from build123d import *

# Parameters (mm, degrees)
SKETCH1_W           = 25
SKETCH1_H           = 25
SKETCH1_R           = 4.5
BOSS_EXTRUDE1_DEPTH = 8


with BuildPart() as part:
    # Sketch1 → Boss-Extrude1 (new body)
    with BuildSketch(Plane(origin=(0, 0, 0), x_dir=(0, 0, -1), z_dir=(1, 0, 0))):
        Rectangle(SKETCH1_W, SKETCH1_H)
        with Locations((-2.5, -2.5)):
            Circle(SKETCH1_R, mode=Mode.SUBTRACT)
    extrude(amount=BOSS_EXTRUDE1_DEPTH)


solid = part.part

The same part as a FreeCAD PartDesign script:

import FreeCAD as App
import Part
import Sketcher

V = App.Vector
Q = App.Units.Quantity

doc = App.newDocument("Part")
params = doc.addObject("Spreadsheet::Sheet", "Params")
for row, (alias, value) in enumerate([
    ("sketch1_diameter", "9 mm"),
    ("sketch1_width", "25 mm"),
    ("pad1_length", "8 mm"),
], start=1):
    params.set(f"A{row}", alias)
    params.set(f"B{row}", "=" + value)
    params.setAlias(f"B{row}", alias)

body = doc.addObject("PartDesign::Body", "Body")

# Sketch on YZ plane
sketch1 = body.newObject("Sketcher::SketchObject", "Sketch")
sketch1.AttachmentSupport = (doc.getObject("YZ_Plane"), [""])
sketch1.MapMode = "FlatFace"
sketch1.addGeometry(Part.LineSegment(V(12.5, 12.5, 0), V(-12.5, 12.5, 0)), False)
sketch1.addGeometry(Part.LineSegment(V(-12.5, 12.5, 0), V(-12.5, -12.5, 0)), False)
sketch1.addGeometry(Part.LineSegment(V(-12.5, -12.5, 0), V(12.5, -12.5, 0)), False)
sketch1.addGeometry(Part.LineSegment(V(12.5, -12.5, 0), V(12.5, 12.5, 0)), False)
sketch1.addGeometry(Part.Circle(V(-2.5, 2.5, 0), V(0, 0, 1), 4.5), False)
sketch1.addConstraint(Sketcher.Constraint("Coincident", 0, 2, 1, 1))
sketch1.addConstraint(Sketcher.Constraint("Coincident", 1, 2, 2, 1))
sketch1.addConstraint(Sketcher.Constraint("Coincident", 2, 2, 3, 1))
sketch1.addConstraint(Sketcher.Constraint("Coincident", 3, 2, 0, 1))
sketch1.addConstraint(Sketcher.Constraint("Horizontal", 0))
sketch1.addConstraint(Sketcher.Constraint("Vertical", 1))
sketch1.addConstraint(Sketcher.Constraint("Horizontal", 2))
sketch1.addConstraint(Sketcher.Constraint("Vertical", 3))
sketch1.addConstraint(Sketcher.Constraint("Symmetric", 0, 2, 2, 2, -1, 1))
sketch1.addConstraint(Sketcher.Constraint("Equal", 2, 1))
sketch1.addConstraint(Sketcher.Constraint("Diameter", 4, Q("9 mm")))
sketch1.addConstraint(Sketcher.Constraint("DistanceX", 0, 2, 0, 1, Q("25 mm")))
sketch1.addConstraint(Sketcher.Constraint("DistanceX", 0, 2, 4, 3, Q("10 mm")))
sketch1.addConstraint(Sketcher.Constraint("DistanceY", 4, 3, 0, 2, Q("10 mm")))
sketch1.setExpression("Constraints[10]", "Params.sketch1_diameter")
sketch1.setExpression("Constraints[11]", "Params.sketch1_width")
pad1 = body.newObject("PartDesign::Pad", "Pad")
pad1.Profile = sketch1
pad1.setExpression("Length", "Params.pad1_length")

doc.recompute()
